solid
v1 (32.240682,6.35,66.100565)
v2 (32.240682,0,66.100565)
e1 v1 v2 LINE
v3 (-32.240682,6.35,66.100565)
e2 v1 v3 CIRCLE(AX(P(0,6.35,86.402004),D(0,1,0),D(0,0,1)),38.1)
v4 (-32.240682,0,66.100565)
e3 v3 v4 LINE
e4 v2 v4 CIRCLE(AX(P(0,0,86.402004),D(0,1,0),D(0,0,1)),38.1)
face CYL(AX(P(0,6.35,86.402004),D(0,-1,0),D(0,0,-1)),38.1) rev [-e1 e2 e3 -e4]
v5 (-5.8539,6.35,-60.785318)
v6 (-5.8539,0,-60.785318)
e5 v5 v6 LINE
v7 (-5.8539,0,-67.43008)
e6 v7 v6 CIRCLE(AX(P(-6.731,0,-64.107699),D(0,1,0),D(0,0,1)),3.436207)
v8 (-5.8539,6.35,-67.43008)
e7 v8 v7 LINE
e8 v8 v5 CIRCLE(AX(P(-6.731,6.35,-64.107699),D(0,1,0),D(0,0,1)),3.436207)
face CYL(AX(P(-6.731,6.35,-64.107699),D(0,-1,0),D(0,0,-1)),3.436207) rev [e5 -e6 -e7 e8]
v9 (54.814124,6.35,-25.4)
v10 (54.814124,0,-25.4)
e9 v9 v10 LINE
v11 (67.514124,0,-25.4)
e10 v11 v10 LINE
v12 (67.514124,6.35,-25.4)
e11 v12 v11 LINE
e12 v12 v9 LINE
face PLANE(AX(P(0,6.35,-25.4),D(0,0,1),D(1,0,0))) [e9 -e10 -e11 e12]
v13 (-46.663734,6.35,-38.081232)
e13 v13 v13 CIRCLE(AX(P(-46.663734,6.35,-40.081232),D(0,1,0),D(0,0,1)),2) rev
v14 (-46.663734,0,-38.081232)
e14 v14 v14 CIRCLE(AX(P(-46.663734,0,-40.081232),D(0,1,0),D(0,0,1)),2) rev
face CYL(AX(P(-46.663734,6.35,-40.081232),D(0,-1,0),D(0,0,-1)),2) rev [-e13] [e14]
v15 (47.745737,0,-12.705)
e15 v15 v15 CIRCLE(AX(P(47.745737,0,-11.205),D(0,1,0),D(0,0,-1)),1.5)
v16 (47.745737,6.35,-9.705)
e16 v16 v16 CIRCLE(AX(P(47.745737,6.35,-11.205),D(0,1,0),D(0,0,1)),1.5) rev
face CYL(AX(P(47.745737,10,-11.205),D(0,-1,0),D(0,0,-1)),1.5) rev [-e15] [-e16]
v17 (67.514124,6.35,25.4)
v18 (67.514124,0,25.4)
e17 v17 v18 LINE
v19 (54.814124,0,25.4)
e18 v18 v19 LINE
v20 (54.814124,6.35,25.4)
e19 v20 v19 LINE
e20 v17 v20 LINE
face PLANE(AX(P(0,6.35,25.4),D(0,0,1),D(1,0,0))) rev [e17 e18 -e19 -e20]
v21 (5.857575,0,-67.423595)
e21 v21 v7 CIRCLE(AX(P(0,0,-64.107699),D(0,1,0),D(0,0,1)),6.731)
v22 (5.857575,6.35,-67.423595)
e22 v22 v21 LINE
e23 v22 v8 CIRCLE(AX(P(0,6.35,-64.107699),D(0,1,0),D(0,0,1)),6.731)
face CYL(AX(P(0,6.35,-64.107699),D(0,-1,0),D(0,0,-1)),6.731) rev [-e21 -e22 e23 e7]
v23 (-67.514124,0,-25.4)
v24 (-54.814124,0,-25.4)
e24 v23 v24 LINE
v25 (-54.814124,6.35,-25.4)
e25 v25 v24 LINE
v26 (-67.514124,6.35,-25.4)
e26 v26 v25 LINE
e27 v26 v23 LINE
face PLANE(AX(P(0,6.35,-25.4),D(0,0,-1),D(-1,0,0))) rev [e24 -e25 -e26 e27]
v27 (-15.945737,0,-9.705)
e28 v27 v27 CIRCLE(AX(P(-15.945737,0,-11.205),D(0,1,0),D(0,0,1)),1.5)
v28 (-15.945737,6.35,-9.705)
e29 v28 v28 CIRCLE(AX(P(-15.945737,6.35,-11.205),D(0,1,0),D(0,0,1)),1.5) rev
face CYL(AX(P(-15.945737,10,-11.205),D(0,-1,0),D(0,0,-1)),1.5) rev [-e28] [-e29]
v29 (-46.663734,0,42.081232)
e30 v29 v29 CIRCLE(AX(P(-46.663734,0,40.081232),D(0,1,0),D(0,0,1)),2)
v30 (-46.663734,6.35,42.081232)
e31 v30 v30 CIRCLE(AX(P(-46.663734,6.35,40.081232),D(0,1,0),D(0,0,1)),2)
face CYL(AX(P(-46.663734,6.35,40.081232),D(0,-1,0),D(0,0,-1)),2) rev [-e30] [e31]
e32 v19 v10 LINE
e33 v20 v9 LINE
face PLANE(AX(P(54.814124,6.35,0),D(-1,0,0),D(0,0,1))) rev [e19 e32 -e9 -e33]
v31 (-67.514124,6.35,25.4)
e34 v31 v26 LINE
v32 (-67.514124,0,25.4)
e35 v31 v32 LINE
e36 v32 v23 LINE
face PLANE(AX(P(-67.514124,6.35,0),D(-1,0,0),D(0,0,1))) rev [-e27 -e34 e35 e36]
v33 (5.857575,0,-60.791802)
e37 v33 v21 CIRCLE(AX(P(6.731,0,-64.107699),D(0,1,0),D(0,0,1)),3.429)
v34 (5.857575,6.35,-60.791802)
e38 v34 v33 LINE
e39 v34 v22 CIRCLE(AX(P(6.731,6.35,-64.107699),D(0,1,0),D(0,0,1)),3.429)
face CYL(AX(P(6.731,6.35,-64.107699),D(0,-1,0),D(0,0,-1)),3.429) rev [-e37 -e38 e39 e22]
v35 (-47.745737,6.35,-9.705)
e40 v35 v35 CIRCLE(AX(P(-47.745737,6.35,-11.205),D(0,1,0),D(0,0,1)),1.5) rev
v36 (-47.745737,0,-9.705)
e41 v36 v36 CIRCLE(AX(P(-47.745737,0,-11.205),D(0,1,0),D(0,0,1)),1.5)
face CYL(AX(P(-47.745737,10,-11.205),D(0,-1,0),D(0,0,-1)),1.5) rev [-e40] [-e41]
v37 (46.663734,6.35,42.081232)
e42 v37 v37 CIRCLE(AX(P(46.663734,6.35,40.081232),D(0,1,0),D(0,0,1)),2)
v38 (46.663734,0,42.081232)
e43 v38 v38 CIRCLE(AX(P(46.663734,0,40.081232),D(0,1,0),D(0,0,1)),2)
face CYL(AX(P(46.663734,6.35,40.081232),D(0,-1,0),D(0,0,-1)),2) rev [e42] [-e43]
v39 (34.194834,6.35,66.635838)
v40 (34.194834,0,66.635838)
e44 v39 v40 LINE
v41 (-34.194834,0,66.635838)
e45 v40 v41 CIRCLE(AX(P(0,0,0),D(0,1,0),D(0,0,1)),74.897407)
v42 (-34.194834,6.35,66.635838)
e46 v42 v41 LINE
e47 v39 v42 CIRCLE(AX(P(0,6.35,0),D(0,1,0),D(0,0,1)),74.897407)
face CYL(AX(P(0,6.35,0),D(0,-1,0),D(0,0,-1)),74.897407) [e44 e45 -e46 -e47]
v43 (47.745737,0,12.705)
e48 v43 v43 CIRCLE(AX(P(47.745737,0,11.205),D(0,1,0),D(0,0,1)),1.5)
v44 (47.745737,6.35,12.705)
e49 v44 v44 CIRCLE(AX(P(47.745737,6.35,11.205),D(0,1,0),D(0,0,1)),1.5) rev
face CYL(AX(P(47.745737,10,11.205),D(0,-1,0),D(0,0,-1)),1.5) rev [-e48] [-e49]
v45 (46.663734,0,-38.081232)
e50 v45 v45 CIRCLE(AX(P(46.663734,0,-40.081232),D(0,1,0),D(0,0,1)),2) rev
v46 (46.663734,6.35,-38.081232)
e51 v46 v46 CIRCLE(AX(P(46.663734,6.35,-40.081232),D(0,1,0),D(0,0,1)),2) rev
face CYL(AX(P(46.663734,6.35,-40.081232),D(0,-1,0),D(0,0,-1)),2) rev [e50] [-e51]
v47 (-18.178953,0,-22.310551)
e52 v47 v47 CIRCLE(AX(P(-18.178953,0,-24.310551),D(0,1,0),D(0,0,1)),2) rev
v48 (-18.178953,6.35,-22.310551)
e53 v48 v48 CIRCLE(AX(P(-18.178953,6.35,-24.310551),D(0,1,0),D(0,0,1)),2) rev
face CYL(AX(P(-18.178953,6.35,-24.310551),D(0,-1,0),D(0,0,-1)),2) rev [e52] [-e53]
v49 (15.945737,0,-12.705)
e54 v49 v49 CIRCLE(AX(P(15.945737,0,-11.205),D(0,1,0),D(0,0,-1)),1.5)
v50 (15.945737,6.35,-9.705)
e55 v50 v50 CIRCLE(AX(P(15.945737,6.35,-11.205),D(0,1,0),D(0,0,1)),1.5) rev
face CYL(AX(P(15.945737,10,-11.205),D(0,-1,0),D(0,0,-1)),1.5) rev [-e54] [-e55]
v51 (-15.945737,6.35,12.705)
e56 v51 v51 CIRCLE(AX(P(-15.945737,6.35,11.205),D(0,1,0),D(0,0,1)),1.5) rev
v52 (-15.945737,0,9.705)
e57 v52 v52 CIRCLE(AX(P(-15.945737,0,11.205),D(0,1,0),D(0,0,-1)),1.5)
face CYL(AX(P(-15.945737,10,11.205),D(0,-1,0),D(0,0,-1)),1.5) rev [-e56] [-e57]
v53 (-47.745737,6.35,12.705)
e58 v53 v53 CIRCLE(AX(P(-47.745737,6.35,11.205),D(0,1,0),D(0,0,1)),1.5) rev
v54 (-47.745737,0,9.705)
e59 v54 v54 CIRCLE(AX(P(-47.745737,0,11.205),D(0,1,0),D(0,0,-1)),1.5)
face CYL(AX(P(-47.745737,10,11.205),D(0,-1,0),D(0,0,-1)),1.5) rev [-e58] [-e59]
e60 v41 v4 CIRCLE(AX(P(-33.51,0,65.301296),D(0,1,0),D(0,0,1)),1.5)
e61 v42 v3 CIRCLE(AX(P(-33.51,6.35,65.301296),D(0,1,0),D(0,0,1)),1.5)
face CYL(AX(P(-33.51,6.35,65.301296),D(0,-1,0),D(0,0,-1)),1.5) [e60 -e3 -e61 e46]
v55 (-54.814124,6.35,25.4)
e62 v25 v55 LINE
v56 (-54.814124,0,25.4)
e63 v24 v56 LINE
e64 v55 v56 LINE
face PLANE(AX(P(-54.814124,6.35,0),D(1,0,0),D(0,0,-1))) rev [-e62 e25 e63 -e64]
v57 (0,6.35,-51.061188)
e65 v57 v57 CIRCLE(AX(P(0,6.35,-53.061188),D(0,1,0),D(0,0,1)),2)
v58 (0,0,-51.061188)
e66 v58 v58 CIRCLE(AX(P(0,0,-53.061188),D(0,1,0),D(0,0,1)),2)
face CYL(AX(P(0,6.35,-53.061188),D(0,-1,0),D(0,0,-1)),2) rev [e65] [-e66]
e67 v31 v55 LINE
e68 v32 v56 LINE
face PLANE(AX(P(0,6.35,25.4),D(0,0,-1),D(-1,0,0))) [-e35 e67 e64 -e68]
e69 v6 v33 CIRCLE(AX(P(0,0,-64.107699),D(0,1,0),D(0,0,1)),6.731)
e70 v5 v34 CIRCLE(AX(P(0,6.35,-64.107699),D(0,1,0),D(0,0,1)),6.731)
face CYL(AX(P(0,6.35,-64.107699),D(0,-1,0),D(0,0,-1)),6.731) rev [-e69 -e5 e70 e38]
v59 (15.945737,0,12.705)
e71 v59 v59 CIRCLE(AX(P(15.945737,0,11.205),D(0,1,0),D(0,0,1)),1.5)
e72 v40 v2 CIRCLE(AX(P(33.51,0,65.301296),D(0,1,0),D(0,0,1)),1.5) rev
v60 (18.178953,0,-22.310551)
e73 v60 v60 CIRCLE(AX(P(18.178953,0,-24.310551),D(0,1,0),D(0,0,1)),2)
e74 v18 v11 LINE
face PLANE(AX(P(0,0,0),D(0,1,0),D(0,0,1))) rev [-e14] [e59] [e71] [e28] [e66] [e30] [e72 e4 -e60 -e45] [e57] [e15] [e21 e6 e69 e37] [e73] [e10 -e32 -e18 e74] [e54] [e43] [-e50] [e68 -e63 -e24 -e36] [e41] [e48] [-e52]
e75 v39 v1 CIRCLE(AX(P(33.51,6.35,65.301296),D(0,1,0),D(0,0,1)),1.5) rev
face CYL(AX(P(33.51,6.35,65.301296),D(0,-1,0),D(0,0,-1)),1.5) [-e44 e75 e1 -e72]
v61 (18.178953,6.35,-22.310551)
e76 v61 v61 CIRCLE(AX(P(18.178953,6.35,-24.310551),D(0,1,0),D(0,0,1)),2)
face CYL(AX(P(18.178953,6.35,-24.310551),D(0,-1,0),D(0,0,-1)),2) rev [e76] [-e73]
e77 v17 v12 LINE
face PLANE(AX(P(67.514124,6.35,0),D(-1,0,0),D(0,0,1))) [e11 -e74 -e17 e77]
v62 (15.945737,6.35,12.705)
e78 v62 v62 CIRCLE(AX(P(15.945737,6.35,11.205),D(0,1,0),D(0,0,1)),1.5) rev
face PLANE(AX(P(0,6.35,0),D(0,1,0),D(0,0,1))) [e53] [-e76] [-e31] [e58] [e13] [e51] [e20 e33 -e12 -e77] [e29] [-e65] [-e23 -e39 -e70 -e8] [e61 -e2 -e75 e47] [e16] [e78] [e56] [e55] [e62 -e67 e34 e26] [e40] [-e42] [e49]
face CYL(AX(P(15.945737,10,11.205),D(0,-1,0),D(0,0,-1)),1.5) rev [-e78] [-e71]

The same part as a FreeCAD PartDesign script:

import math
import FreeCAD as App
import Part
import Sketcher
from FreeCAD import Vector
Q = App.Units.Quantity

doc = App.newDocument("Part")
body = doc.addObject("PartDesign::Body", "Body")

sketch1 = body.newObject("Sketcher::SketchObject", "Sketch")
sketch1.AttachmentSupport = (doc.getObject("XZ_Plane"), [""])
sketch1.MapMode = "FlatFace"
sketch1.addGeometry(Part.ArcOfCircle(Part.Circle(Vector(33.5, 65.3, 0), Vector(0, 0, 1), 1.5), math.radians(63), math.radians(148)), False)
sketch1.addGeometry(Part.ArcOfCircle(Part.Circle(Vector(0, 0, 0), Vector(0, 0, 1), 74.9), math.radians(117), math.radians(423)), False)
sketch1.addGeometry(Part.ArcOfCircle(Part.Circle(Vector(-33.5, 65.3, 0), Vector(0, 0, 1), 1.5), math.radians(32), math.radians(117)), False)
sketch1.addGeometry(Part.ArcOfCircle(Part.Circle(Vector(0, 86.4, 0), Vector(0, 0, 1), 38.1), math.radians(-148), math.radians(-32)), False)
sketch1.addGeometry(Part.Circle(Vector(46.7, 40.1, 0), Vector(0, 0, 1), 2), False)
sketch1.addGeometry(Part.LineSegment(Vector(54.8, 25.4, 0), Vector(54.8, -25.4, 0)), False)
sketch1.addGeometry(Part.LineSegment(Vector(54.8, -25.4, 0), Vector(67.5, -25.4, 0)), False)
sketch1.addGeometry(Part.LineSegment(Vector(67.5, -25.4, 0), Vector(67.5, 25.4, 0)), False)
sketch1.addGeometry(Part.LineSegment(Vector(67.5, 25.4, 0), Vector(54.8, 25.4, 0)), False)
sketch1.addGeometry(Part.Circle(Vector(-46.7, 40.1, 0), Vector(0, 0, 1), 2), False)
sketch1.addGeometry(Part.LineSegment(Vector(-67.5, 25.4, 0), Vector(-67.5, -25.4, 0)), False)
sketch1.addGeometry(Part.LineSegment(Vector(-67.5, -25.4, 0), Vector(-54.8, -25.4, 0)), False)
sketch1.addGeometry(Part.LineSegment(Vector(-54.8, -25.4, 0), Vector(-54.8, 25.4, 0)), False)
sketch1.addGeometry(Part.LineSegment(Vector(-54.8, 25.4, 0), Vector(-67.5, 25.4, 0)), False)
sketch1.addGeometry(Part.Circle(Vector(46.7, -40.1, 0), Vector(0, 0, 1), 2), False)
sketch1.addGeometry(Part.Circle(Vector(18.2, -24.3, 0), Vector(0, 0, 1), 2), False)
sketch1.addGeometry(Part.Circle(Vector(-18.2, -24.3, 0), Vector(0, 0, 1), 2), False)
sketch1.addGeometry(Part.Circle(Vector(-46.7, -40.1, 0), Vector(0, 0, 1), 2), False)
sketch1.addGeometry(Part.Circle(Vector(0, -53.1, 0), Vector(0, 0, 1), 2), False)
sketch1.addGeometry(Part.ArcOfCircle(Part.Circle(Vector(-6.7, -64.1, 0), Vector(0, 0, 1), 3.4), math.radians(75), math.radians(285)), False)
sketch1.addGeometry(Part.ArcOfCircle(Part.Circle(Vector(0, -64.1, 0), Vector(0, 0, 1), 6.7), math.radians(-150), math.radians(-30)), False)
sketch1.addGeometry(Part.ArcOfCircle(Part.Circle(Vector(6.7, -64.1, 0), Vector(0, 0, 1), 3.4), math.radians(-105), math.radians(105)), False)
sketch1.addGeometry(Part.ArcOfCircle(Part.Circle(Vector(0, -64.1, 0), Vector(0, 0, 1), 6.7), math.radians(30), math.radians(150)), False)
sketch1.addConstraint(Sketcher.Constraint("Tangent", 0, 1, 1, 2))
sketch1.addConstraint(Sketcher.Constraint("Tangent", 1, 1, 2, 2))
sketch1.addConstraint(Sketcher.Constraint("Tangent", 2, 1, 3, 1))
sketch1.addConstraint(Sketcher.Constraint("Tangent", 3, 2, 0, 2))
sketch1.addConstraint(Sketcher.Constraint("Coincident", 5, 2, 6, 1))
sketch1.addConstraint(Sketcher.Constraint("Coincident", 6, 2, 7, 1))
sketch1.addConstraint(Sketcher.Constraint("Coincident", 7, 2, 8, 1))
sketch1.addConstraint(Sketcher.Constraint("Coincident", 8, 2, 5, 1))
sketch1.addConstraint(Sketcher.Constraint("Coincident", 10, 2, 11, 1))
sketch1.addConstraint(Sketcher.Constraint("Coincident", 11, 2, 12, 1))
sketch1.addConstraint(Sketcher.Constraint("Coincident", 12, 2, 13, 1))
sketch1.addConstraint(Sketcher.Constraint("Coincident", 13, 2, 10, 1))
sketch1.addConstraint(Sketcher.Constraint("Coincident", 19, 2, 20, 1))
sketch1.addConstraint(Sketcher.Constraint("Coincident", 20, 2, 21, 1))
sketch1.addConstraint(Sketcher.Constraint("Coincident", 21, 2, 22, 1))
sketch1.addConstraint(Sketcher.Constraint("Coincident", 22, 2, 19, 1))
sketch1.addConstraint(Sketcher.Constraint("Vertical", 5))
sketch1.addConstraint(Sketcher.Constraint("Horizontal", 6))
sketch1.addConstraint(Sketcher.Constraint("Vertical", 7))
sketch1.addConstraint(Sketcher.Constraint("Horizontal", 8))
sketch1.addConstraint(Sketcher.Constraint("Vertical", 10))
sketch1.addConstraint(Sketcher.Constraint("Horizontal", 11))
sketch1.addConstraint(Sketcher.Constraint("Vertical", 12))
sketch1.addConstraint(Sketcher.Constraint("Horizontal", 13))
sketch1.addConstraint(Sketcher.Constraint("Coincident", 1, 3, -1, 1))
sketch1.addConstraint(Sketcher.Constraint("Coincident", 22, 3, 20, 3))
sketch1.addConstraint(Sketcher.Constraint("Equal", 0, 2))
sketch1.addConstraint(Sketcher.Constraint("Equal", 4, 9))
sketch1.addConstraint(Sketcher.Constraint("Equal", 9, 14))
sketch1.addConstraint(Sketcher.Constraint("Equal", 14, 15))
sketch1.addConstraint(Sketcher.Constraint("Equal", 15, 16))
sketch1.addConstraint(Sketcher.Constraint("Equal", 16, 17))
sketch1.addConstraint(Sketcher.Constraint("Equal", 17, 18))
sketch1.addConstraint(Sketcher.Constraint("Equal", 20, 22))
sketch1.addConstraint(Sketcher.Constraint("Symmetric", 9, 3, 14, 3, -1, 1))
sketch1.addConstraint(Sketcher.Constraint("Symmetric", 4, 3, 17, 3, -1, 1))
sketch1.addConstraint(Sketcher.Constraint("Symmetric", 7, 2, 10, 2, -1, 1))
sketch1.addConstraint(Sketcher.Constraint("Symmetric", 5, 2, 12, 2, -1, 1))
sketch1.addConstraint(Sketcher.Constraint("Symmetric", 4, 3, 9, 3, -2))
sketch1.addConstraint(Sketcher.Constraint("Symmetric", 15, 3, 16, 3, -2))
sketch1.addConstraint(Sketcher.Constraint("Symmetric", 19, 3, 21, 3, -2))
sketch1.addConstraint(Sketcher.Constraint("PointOnObject", 3, 3, -2))
sketch1.addConstraint(Sketcher.Constraint("PointOnObject", 18, 3, -2))
sketch1.addConstraint(Sketcher.Constraint("PointOnObject", 20, 3, -2))
sketch1.addConstraint(Sketcher.Constraint("Horizontal", 19, 3, 20, 3))
sketch1.addConstraint(Sketcher.Constraint("Horizontal", 6, 2, 10, 2))
sketch1.addConstraint(Sketcher.Constraint("Radius", 3, Q("1.5 in")))
sketch1.addConstraint(Sketcher.Constraint("DistanceY", 5, 2, 5, 1, Q("2 in")))
sketch1.addConstraint(Sketcher.Constraint("DistanceX", 6, 1, 6, 2, Q("0.5 in")))
sketch1.addConstraint(Sketcher.Constraint("Radius", 20, Q("0.265 in")))
sketch1.addConstraint(Sketcher.Constraint("Radius", 21, Q("0.135 in")))
sketch1.addConstraint(Sketcher.Constraint("Diameter", 4, 4.0))
sketch1.addConstraint(Sketcher.Constraint("Radius", 0, 1.5))
sketch1.addConstraint(Sketcher.Constraint("DistanceX", 19, 3, 21, 3, Q("0.53 in")))
sketch1.addConstraint(Sketcher.Constraint("Radius", 1, 74.897407))
sketch1.addConstraint(Sketcher.Constraint("Radius", 19, 3.436207))
sketch1.addConstraint(Sketcher.Constraint("DistanceX", -1, 1, 0, 3, 33.51))
sketch1.addConstraint(Sketcher.Constraint("DistanceY", 19, 3, -1, 1, 64.107699))
sketch1.addConstraint(Sketcher.Constraint("DistanceX", 0, 1, 4, 3, 12.4689))
sketch1.addConstraint(Sketcher.Constraint("DistanceY", -1, 1, 4, 3, 40.081232))
sketch1.addConstraint(Sketcher.Constraint("DistanceY", 15, 3, -1, 1, 24.310551))
sketch1.addConstraint(Sketcher.Constraint("DistanceX", 15, 3, 14, 3, 28.484781))
sketch1.addConstraint(Sketcher.Constraint("DistanceY", 19, 3, 18, 3, 11.046511))
sketch1.addConstraint(Sketcher.Constraint("DistanceX", 14, 3, 5, 2, 8.15039))
pad1 = body.newObject("PartDesign::Pad", "Pad")
pad1.Profile = sketch1
pad1.Length = Q("0.25 in")
pad1.Reversed = True

sketch2 = body.newObject("Sketcher::SketchObject", "Sketch001")
sketch2.AttachmentSupport = (doc.getObject("XZ_Plane"), [""])
sketch2.MapMode = "FlatFace"
sketch2.addGeometry(Part.Circle(Vector(-47.7, -11.2, 0), Vector(0, 0, 1), 1.5), False)
sketch2.addGeometry(Part.Circle(Vector(-47.7, 11.2, 0), Vector(0, 0, 1), 1.5), False)
sketch2.addGeometry(Part.Circle(Vector(-15.9, -11.2, 0), Vector(0, 0, 1), 1.5), False)
sketch2.addGeometry(Part.Circle(Vector(-15.9, 11.2, 0), Vector(0, 0, 1), 1.5), False)
sketch2.addGeometry(Part.Circle(Vector(15.9, 11.2, 0), Vector(0, 0, 1), 1.5), False)
sketch2.addGeometry(Part.Circle(Vector(15.9, -11.2, 0), Vector(0, 0, 1), 1.5), False)
sketch2.addGeometry(Part.Circle(Vector(47.7, 11.2, 0), Vector(0, 0, 1), 1.5), False)
sketch2.addGeometry(Part.Circle(Vector(47.7, -11.2, 0), Vector(0, 0, 1), 1.5), False)
sketch2.addConstraint(Sketcher.Constraint("Equal", 0, 1))
sketch2.addConstraint(Sketcher.Constraint("Equal", 1, 2))
sketch2.addConstraint(Sketcher.Constraint("Equal", 2, 3))
sketch2.addConstraint(Sketcher.Constraint("Equal", 3, 4))
sketch2.addConstraint(Sketcher.Constraint("Equal", 4, 5))
sketch2.addConstraint(Sketcher.Constraint("Equal", 5, 6))
sketch2.addConstraint(Sketcher.Constraint("Equal", 6, 7))
sketch2.addConstraint(Sketcher.Constraint("Symmetric", 2, 3, 4, 3, -1, 1))
sketch2.addConstraint(Sketcher.Constraint("Symmetric", 3, 3, 5, 3, -1, 1))
sketch2.addConstraint(Sketcher.Constraint("Symmetric", 0, 3, 6, 3, -1, 1))
sketch2.addConstraint(Sketcher.Constraint("Symmetric", 1, 3, 7, 3, -1, 1))
sketch2.addConstraint(Sketcher.Constraint("Symmetric", 3, 3, 4, 3, -2))
sketch2.addConstraint(Sketcher.Constraint("Symmetric", 1, 3, 6, 3, -2))
sketch2.addConstraint(Sketcher.Constraint("Horizontal", 0, 3, 2, 3))
sketch2.addConstraint(Sketcher.Constraint("Diameter", 0, 3.0))
sketch2.addConstraint(Sketcher.Constraint("DistanceY", 0, 3, -1, 1, 11.205))
sketch2.addConstraint(Sketcher.Constraint("DistanceX", 0, 3, 2, 3, 31.8))
sketch2.addConstraint(Sketcher.Constraint("DistanceX", 0, 3, -1, 1, 47.745737))
pocket1 = body.newObject("PartDesign::Pocket", "Pocket")
pocket1.Profile = sketch2
pocket1.Length = 10

doc.recompute()
